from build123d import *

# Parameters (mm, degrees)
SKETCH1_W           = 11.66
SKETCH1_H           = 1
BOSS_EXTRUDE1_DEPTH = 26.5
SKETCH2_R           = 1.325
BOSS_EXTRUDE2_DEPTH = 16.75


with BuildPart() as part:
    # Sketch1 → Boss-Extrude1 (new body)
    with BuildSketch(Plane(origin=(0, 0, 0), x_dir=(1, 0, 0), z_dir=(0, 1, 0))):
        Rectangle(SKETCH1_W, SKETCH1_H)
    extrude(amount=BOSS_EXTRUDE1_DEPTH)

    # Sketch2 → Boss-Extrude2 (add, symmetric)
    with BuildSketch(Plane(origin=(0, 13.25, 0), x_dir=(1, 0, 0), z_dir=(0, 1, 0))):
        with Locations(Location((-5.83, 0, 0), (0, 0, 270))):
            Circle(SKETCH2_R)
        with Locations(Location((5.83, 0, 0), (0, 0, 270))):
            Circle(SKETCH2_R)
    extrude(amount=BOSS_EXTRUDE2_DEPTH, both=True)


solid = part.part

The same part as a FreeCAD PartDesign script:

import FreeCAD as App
import Part
import Sketcher

V = App.Vector
Q = App.Units.Quantity

doc = App.newDocument("Part")
body = doc.addObject("PartDesign::Body", "Body")

# Sketch on XZ plane
sketch1 = body.newObject("Sketcher::SketchObject", "Sketch")
sketch1.AttachmentSupport = (doc.getObject("XZ_Plane"), [""])
sketch1.MapMode = "FlatFace"
sketch1.addGeometry(Part.LineSegment(V(-5.8, -0.5, 0), V(-5.8, 0.5, 0)), False)
sketch1.addGeometry(Part.LineSegment(V(-5.8, 0.5, 0), V(5.8, 0.5, 0)), False)
sketch1.addGeometry(Part.LineSegment(V(5.8, 0.5, 0), V(5.8, -0.5, 0)), False)
sketch1.addGeometry(Part.LineSegment(V(5.8, -0.5, 0), V(-5.8, -0.5, 0)), False)
sketch1.addConstraint(Sketcher.Constraint("Coincident", 0, 2, 1, 1))
sketch1.addConstraint(Sketcher.Constraint("Coincident", 1, 2, 2, 1))
sketch1.addConstraint(Sketcher.Constraint("Coincident", 2, 2, 3, 1))
sketch1.addConstraint(Sketcher.Constraint("Coincident", 3, 2, 0, 1))
sketch1.addConstraint(Sketcher.Constraint("Vertical", 0))
sketch1.addConstraint(Sketcher.Constraint("Horizontal", 1))
sketch1.addConstraint(Sketcher.Constraint("Vertical", 2))
sketch1.addConstraint(Sketcher.Constraint("Horizontal", 3))
sketch1.addConstraint(Sketcher.Constraint("Symmetric", 0, 2, 2, 2, -1, 1))
sketch1.addConstraint(Sketcher.Constraint("DistanceY", 0, 1, 0, 2, Q("1 mm")))
sketch1.addConstraint(Sketcher.Constraint("DistanceX", 1, 1, 1, 2, Q("11.66 mm")))
pad1 = body.newObject("PartDesign::Pad", "Pad")
pad1.Profile = sketch1
pad1.Length = 26.5
pad1.Reversed = True

# Sketch on XZ plane
sketch2 = body.newObject("Sketcher::SketchObject", "Sketch001")
sketch2.AttachmentSupport = (doc.getObject("XZ_Plane"), [""])
sketch2.MapMode = "FlatFace"
sketch2.AttachmentOffset = App.Placement(V(0, 0, -13.25), App.Rotation())
sketch2.addGeometry(Part.Circle(V(-5.8, 0, 0), V(0, 0, 1), 1.3), False)
sketch2.addGeometry(Part.Circle(V(5.8, 0, 0), V(0, 0, 1), 1.3), False)
sketch2.addConstraint(Sketcher.Constraint("Equal", 0, 1))
sketch2.addConstraint(Sketcher.Constraint("Symmetric", 0, 3, 1, 3, -1, 1))
sketch2.addConstraint(Sketcher.Constraint("PointOnObject", 0, 3, -1))
sketch2.addConstraint(Sketcher.Constraint("Diameter", 0, Q("2.65 mm")))
sketch2.addConstraint(Sketcher.Constraint("DistanceX", 0, 3, -1, 1, Q("5.83 mm")))
pad2 = body.newObject("PartDesign::Pad", "Pad001")
pad2.Profile = sketch2
pad2.Length = 33.5
pad2.Midplane = True

doc.recompute()
